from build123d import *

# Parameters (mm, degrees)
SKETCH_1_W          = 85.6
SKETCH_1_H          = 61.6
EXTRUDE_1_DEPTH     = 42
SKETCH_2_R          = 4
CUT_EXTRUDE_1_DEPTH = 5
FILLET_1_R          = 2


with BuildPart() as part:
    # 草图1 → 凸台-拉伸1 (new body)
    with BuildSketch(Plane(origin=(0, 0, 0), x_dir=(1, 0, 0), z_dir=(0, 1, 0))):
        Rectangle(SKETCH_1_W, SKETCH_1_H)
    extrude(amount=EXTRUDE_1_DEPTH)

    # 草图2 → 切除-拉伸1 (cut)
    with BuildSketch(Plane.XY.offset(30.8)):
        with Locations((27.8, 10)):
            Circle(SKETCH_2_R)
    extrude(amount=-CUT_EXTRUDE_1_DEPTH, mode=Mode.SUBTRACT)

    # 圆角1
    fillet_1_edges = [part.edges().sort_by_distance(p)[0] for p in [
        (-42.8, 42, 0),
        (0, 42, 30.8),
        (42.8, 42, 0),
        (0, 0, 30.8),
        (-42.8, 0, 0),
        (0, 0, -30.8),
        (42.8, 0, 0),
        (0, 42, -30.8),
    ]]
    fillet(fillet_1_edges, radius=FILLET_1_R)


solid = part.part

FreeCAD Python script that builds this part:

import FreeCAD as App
import Part
import Sketcher
from FreeCAD import Vector


def edges_at(feature, points):
    """Names of the edges that pass closest to the given points."""
    edges = feature.Shape.Edges
    near = lambda p: min(range(len(edges)), key=lambda i: edges[i].distToShape(Part.Vertex(*p))[0])
    return sorted({f"Edge{near(p) + 1}" for p in points})


def add_polygon(sketch, points):
    """Adds a closed chain of lines whose ends are joined by coincident constraints."""
    first, n = sketch.GeometryCount, len(points)
    for a, b in zip(points, points[1:] + points[:1]):
        sketch.addGeometry(Part.LineSegment(App.Vector(*a, 0), App.Vector(*b, 0)), False)
    for i in range(n):
        sketch.addConstraint(Sketcher.Constraint("Coincident", first + i, 2, first + (i + 1) % n, 1))

doc = App.newDocument("Part")
body = doc.addObject("PartDesign::Body", "Body")

sketch1 = body.newObject("Sketcher::SketchObject", "Sketch")
sketch1.AttachmentSupport = (doc.getObject("XZ_Plane"), [""])
sketch1.MapMode = "FlatFace"
add_polygon(sketch1, [(-43, -31), (-43, 31), (43, 31), (43, -31)])
sketch1.addConstraint(Sketcher.Constraint("Vertical", 0))
sketch1.addConstraint(Sketcher.Constraint("Horizontal", 1))
sketch1.addConstraint(Sketcher.Constraint("Vertical", 2))
sketch1.addConstraint(Sketcher.Constraint("Horizontal", 3))
sketch1.addConstraint(Sketcher.Constraint("Symmetric", 0, 2, 2, 2, -1, 1))
sketch1.addConstraint(Sketcher.Constraint("DistanceX", 1, 1, 1, 2, 85.6))
sketch1.addConstraint(Sketcher.Constraint("DistanceY", 0, 1, 0, 2, 61.6))
pad1 = body.newObject("PartDesign::Pad", "Pad")
pad1.Profile = sketch1
pad1.Length = 42
pad1.Reversed = True

sketch2 = body.newObject("Sketcher::SketchObject", "Sketch001")
sketch2.AttachmentSupport = (doc.getObject("XY_Plane"), [""])
sketch2.MapMode = "FlatFace"
sketch2.AttachmentOffset = App.Placement(Vector(0, 0, 30.8), App.Rotation())
sketch2.addGeometry(Part.Circle(Vector(27.8, 10, 0), Vector(0, 0, 1), 4), False)
sketch2.addConstraint(Sketcher.Constraint("Diameter", 0, 8.0))
sketch2.addConstraint(Sketcher.Constraint("DistanceY", -1, 1, 0, 3, 10.0))
sketch2.addConstraint(Sketcher.Constraint("DistanceX", -1, 1, 0, 3, 27.8))
pocket1 = body.newObject("PartDesign::Pocket", "Pocket")
pocket1.Profile = sketch2
pocket1.Length = 5
doc.recompute()

fillet = body.newObject("PartDesign::Fillet", "Fillet")
fillet.Base = (pocket1, edges_at(pocket1, [
    (-42.8, 42, 0),
    (0, 42, 30.8),
    (42.8, 42, 0),
    (0, 0, 30.8),
    (-42.8, 0, 0),
    (0, 0, -30.8),
    (42.8, 0, 0),
    (0, 42, -30.8),
]))
fillet.Radius = 2

doc.recompute()
